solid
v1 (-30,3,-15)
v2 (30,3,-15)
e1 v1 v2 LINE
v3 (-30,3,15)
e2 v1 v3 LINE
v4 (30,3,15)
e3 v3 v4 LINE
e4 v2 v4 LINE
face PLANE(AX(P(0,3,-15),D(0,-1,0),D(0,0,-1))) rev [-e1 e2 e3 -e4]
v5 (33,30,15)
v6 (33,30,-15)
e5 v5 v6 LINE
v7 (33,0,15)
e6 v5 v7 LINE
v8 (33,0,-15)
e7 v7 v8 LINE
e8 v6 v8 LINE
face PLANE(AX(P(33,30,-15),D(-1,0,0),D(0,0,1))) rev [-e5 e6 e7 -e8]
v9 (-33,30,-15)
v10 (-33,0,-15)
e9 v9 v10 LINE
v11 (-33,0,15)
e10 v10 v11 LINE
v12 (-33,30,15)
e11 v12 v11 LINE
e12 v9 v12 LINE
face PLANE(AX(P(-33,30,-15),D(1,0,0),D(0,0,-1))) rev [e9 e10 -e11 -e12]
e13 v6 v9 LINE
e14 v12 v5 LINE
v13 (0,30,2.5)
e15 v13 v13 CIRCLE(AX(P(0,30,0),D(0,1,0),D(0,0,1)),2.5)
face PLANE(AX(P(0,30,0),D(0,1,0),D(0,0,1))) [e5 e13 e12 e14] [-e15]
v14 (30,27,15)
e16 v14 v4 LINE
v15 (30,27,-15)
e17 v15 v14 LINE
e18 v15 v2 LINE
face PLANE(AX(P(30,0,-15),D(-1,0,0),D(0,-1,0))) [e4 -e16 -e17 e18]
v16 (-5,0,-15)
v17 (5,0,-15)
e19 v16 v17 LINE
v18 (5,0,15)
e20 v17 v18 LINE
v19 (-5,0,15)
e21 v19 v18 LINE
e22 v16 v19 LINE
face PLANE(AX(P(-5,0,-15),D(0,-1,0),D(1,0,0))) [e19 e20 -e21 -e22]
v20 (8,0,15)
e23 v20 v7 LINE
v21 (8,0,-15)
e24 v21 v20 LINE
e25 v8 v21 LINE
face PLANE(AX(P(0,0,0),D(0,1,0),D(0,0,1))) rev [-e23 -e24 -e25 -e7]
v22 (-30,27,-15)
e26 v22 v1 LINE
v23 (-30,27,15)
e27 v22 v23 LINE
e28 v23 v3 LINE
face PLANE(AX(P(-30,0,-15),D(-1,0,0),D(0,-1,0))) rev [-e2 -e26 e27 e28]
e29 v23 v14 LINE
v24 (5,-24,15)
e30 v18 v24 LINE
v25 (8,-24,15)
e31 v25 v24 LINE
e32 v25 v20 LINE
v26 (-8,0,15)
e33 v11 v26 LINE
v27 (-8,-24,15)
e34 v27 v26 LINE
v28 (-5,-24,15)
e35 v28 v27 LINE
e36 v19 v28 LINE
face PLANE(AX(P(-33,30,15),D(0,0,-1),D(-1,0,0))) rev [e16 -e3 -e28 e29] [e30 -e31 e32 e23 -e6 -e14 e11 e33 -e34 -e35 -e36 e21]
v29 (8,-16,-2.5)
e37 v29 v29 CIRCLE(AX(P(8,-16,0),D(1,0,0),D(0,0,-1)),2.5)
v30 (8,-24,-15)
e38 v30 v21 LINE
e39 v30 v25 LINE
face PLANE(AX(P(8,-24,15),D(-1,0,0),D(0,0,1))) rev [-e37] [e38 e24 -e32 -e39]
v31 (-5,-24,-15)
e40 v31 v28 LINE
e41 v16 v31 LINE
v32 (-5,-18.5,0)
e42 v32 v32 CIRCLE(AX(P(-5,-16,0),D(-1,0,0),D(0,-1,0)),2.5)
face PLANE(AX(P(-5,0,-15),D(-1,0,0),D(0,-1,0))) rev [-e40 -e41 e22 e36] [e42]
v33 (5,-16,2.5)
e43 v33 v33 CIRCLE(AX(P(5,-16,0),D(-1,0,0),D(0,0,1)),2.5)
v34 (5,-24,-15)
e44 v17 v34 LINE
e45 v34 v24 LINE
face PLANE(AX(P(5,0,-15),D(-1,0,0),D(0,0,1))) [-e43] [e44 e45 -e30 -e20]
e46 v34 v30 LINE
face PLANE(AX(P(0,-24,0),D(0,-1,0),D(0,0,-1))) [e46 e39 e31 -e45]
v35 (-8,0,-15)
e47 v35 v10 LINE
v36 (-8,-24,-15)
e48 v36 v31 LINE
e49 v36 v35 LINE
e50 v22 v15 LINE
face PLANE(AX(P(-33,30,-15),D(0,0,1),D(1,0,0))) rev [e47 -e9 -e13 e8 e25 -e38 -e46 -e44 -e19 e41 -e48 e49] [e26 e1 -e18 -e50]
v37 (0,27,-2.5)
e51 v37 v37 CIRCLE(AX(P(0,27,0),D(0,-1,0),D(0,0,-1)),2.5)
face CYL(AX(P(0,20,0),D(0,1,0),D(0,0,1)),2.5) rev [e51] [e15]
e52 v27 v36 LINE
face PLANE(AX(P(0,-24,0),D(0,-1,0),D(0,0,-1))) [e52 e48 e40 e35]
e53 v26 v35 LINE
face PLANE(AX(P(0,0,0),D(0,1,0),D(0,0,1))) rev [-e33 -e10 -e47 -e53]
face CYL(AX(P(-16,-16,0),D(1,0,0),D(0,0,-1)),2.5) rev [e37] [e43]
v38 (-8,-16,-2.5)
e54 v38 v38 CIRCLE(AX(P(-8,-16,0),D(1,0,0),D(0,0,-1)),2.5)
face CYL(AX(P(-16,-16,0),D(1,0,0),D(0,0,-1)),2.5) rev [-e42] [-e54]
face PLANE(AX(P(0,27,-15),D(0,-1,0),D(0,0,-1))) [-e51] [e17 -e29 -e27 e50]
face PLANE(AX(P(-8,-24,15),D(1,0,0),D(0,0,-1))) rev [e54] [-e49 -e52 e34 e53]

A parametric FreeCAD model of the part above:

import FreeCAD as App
import Part
import Sketcher

doc = App.newDocument("Part")
body = doc.addObject("PartDesign::Body", "Body")

# Sketch on XZ plane
sketch1 = doc.addObject("Sketcher::SketchObject", "Sketch")
body.addObject(sketch1)
sketch1.AttachmentSupport = (doc.XZ_Plane, [""])
sketch1.MapMode = "FlatFace"
sketch1.addGeometry([
    Part.LineSegment(App.Vector(-33, -15, 0), App.Vector(-33, 15, 0)),
    Part.LineSegment(App.Vector(-33, 15, 0), App.Vector(33, 15, 0)),
    Part.LineSegment(App.Vector(33, 15, 0), App.Vector(33, -15, 0)),
    Part.LineSegment(App.Vector(33, -15, 0), App.Vector(-33, -15, 0)),
], False)
sketch1.addConstraint([
    Sketcher.Constraint("Coincident", 0, 2, 1, 1),
    Sketcher.Constraint("Coincident", 1, 2, 2, 1),
    Sketcher.Constraint("Coincident", 2, 2, 3, 1),
    Sketcher.Constraint("Coincident", 3, 2, 0, 1),
    Sketcher.Constraint("Vertical", 0),
    Sketcher.Constraint("Horizontal", 1),
    Sketcher.Constraint("Vertical", 2),
    Sketcher.Constraint("Horizontal", 3),
    Sketcher.Constraint("Symmetric", 0, 2, 2, 2, -1, 1),
    Sketcher.Constraint("DistanceX", 1, 1, 1, 2, 66.0),
    Sketcher.Constraint("DistanceY", 0, 1, 0, 2, 30.0),
])
pad1 = doc.addObject("PartDesign::Pad", "Pad")
body.addObject(pad1)
pad1.Profile = sketch1
pad1.Length = 30
pad1.Reversed = True

# Sketch on XY plane
sketch2 = doc.addObject("Sketcher::SketchObject", "Sketch001")
body.addObject(sketch2)
sketch2.AttachmentSupport = (doc.XY_Plane, [""])
sketch2.MapMode = "FlatFace"
sketch2.AttachmentOffset = App.Placement(App.Vector(0, 0, 15), App.Rotation())
sketch2.addGeometry([
    Part.LineSegment(App.Vector(30, 3, 0), App.Vector(30, 27, 0)),
    Part.LineSegment(App.Vector(30, 27, 0), App.Vector(-30, 27, 0)),
    Part.LineSegment(App.Vector(-30, 27, 0), App.Vector(-30, 3, 0)),
    Part.LineSegment(App.Vector(-30, 3, 0), App.Vector(30, 3, 0)),
], False)
sketch2.addConstraint([
    Sketcher.Constraint("Coincident", 0, 2, 1, 1),
    Sketcher.Constraint("Coincident", 1, 2, 2, 1),
    Sketcher.Constraint("Coincident", 2, 2, 3, 1),
    Sketcher.Constraint("Coincident", 3, 2, 0, 1),
    Sketcher.Constraint("Vertical", 0),
    Sketcher.Constraint("Horizontal", 1),
    Sketcher.Constraint("Vertical", 2),
    Sketcher.Constraint("Horizontal", 3),
    Sketcher.Constraint("DistanceX", 1, 2, 1, 1, 60.0),
    Sketcher.Constraint("DistanceY", 0, 1, 0, 2, 24.0),
    Sketcher.Constraint("DistanceX", -1, 1, 0, 2, 30.0),
    Sketcher.Constraint("DistanceY", -1, 1, 0, 2, 27.0),
])
pocket1 = doc.addObject("PartDesign::Pocket", "Pocket")
body.addObject(pocket1)
pocket1.Profile = sketch2
pocket1.Type = "ThroughAll"

# Sketch on XZ plane
sketch3 = doc.addObject("Sketcher::SketchObject", "Sketch002")
body.addObject(sketch3)
sketch3.AttachmentSupport = (doc.XZ_Plane, [""])
sketch3.MapMode = "FlatFace"
sketch3.AttachmentOffset = App.Placement(App.Vector(0, 0, -30), App.Rotation())
sketch3.addGeometry(Part.Circle(App.Vector(0, 0, 0), App.Vector(0, 0, 1), 2.5), False)
sketch3.addConstraint([
    Sketcher.Constraint("Coincident", 0, 3, -1, 1),
    Sketcher.Constraint("Diameter", 0, 5.0),
])
pocket2 = doc.addObject("PartDesign::Pocket", "Pocket001")
body.addObject(pocket2)
pocket2.Profile = sketch3
pocket2.Length = 10
pocket2.Reversed = True

# Sketch on XZ plane
sketch4 = doc.addObject("Sketcher::SketchObject", "Sketch003")
body.addObject(sketch4)
sketch4.AttachmentSupport = (doc.XZ_Plane, [""])
sketch4.MapMode = "FlatFace"
sketch4.addGeometry([
    Part.LineSegment(App.Vector(-8, 15, 0), App.Vector(-8, -15, 0)),
    Part.LineSegment(App.Vector(-8, -15, 0), App.Vector(8, -15, 0)),
    Part.LineSegment(App.Vector(8, -15, 0), App.Vector(8, 15, 0)),
    Part.LineSegment(App.Vector(8, 15, 0), App.Vector(-8, 15, 0)),
], False)
sketch4.addConstraint([
    Sketcher.Constraint("Coincident", 0, 2, 1, 1),
    Sketcher.Constraint("Coincident", 1, 2, 2, 1),
    Sketcher.Constraint("Coincident", 2, 2, 3, 1),
    Sketcher.Constraint("Coincident", 3, 2, 0, 1),
    Sketcher.Constraint("Vertical", 0),
    Sketcher.Constraint("Horizontal", 1),
    Sketcher.Constraint("Vertical", 2),
    Sketcher.Constraint("Horizontal", 3),
    Sketcher.Constraint("Symmetric", 0, 2, 2, 2, -1, 1),
    Sketcher.Constraint("DistanceX", 1, 1, 1, 2, 16.0),
    Sketcher.Constraint("DistanceY", 0, 2, 0, 1, 30.0),
])
pad2 = doc.addObject("PartDesign::Pad", "Pad001")
body.addObject(pad2)
pad2.Profile = sketch4
pad2.Length = 24

# Sketch on XY plane
sketch5 = doc.addObject("Sketcher::SketchObject", "Sketch004")
body.addObject(sketch5)
sketch5.AttachmentSupport = (doc.XY_Plane, [""])
sketch5.MapMode = "FlatFace"
sketch5.AttachmentOffset = App.Placement(App.Vector(0, 0, 15), App.Rotation())
sketch5.addGeometry([
    Part.LineSegment(App.Vector(-5, 0, 0), App.Vector(-5, -24, 0)),
    Part.LineSegment(App.Vector(-5, -24, 0), App.Vector(5, -24, 0)),
    Part.LineSegment(App.Vector(5, -24, 0), App.Vector(5, 0, 0)),
    Part.LineSegment(App.Vector(5, 0, 0), App.Vector(-5, 0, 0)),
], False)
sketch5.addConstraint([
    Sketcher.Constraint("Coincident", 0, 2, 1, 1),
    Sketcher.Constraint("Coincident", 1, 2, 2, 1),
    Sketcher.Constraint("Coincident", 2, 2, 3, 1),
    Sketcher.Constraint("Coincident", 3, 2, 0, 1),
    Sketcher.Constraint("Vertical", 0),
    Sketcher.Constraint("Horizontal", 1),
    Sketcher.Constraint("Vertical", 2),
    Sketcher.Constraint("Horizontal", 3),
    Sketcher.Constraint("Symmetric", 2, 2, 3, 2, -1, 1),
    Sketcher.Constraint("DistanceX", 1, 1, 1, 2, 10.0),
    Sketcher.Constraint("DistanceY", 0, 2, 0, 1, 24.0),
])
pocket3 = doc.addObject("PartDesign::Pocket", "Pocket002")
body.addObject(pocket3)
pocket3.Profile = sketch5
pocket3.Type = "ThroughAll"

# Sketch on YZ plane
sketch6 = doc.addObject("Sketcher::SketchObject", "Sketch005")
body.addObject(sketch6)
sketch6.AttachmentSupport = (doc.YZ_Plane, [""])
sketch6.MapMode = "FlatFace"
sketch6.AttachmentOffset = App.Placement(App.Vector(0, 0, 8), App.Rotation())
sketch6.addGeometry(Part.Circle(App.Vector(-16, 0, 0), App.Vector(0, 0, 1), 2.5), False)
sketch6.addConstraint([
    Sketcher.Constraint("PointOnObject", 0, 3, -1),
    Sketcher.Constraint("Diameter", 0, 5.0),
    Sketcher.Constraint("DistanceX", 0, 3, -1, 1, 16.0),
])
pocket4 = doc.addObject("PartDesign::Pocket", "Pocket003")
body.addObject(pocket4)
pocket4.Profile = sketch6
pocket4.Length = 24

doc.recompute()
